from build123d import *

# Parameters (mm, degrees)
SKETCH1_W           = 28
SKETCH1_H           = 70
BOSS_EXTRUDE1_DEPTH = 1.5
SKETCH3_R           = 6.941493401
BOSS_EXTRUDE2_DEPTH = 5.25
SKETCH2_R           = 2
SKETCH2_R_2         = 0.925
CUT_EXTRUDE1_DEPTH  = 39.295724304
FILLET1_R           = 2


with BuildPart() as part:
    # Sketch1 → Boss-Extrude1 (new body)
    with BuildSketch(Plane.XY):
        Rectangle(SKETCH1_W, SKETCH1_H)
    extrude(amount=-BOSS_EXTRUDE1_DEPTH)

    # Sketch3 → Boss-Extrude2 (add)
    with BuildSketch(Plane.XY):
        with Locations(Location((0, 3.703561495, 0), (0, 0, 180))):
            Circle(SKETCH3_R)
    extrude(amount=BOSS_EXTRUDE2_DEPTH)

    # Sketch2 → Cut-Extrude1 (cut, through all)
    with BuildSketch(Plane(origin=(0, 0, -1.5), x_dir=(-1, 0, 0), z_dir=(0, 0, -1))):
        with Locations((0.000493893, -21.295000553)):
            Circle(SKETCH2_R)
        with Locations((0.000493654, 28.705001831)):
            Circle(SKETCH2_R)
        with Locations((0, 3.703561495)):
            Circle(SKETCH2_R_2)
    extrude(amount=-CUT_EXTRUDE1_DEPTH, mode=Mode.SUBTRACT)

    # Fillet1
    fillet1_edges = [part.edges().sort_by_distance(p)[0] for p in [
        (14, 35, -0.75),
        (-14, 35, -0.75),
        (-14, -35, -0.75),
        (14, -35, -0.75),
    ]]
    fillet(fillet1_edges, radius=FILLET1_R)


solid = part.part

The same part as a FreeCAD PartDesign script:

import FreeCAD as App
import Part
import Sketcher
from FreeCAD import Vector
Q = App.Units.Quantity


def edges_at(feature, points):
    """Names of the edges that pass closest to the given points."""
    edges = feature.Shape.Edges
    near = lambda p: min(range(len(edges)), key=lambda i: edges[i].distToShape(Part.Vertex(*p))[0])
    return sorted({f"Edge{near(p) + 1}" for p in points})

doc = App.newDocument("Part")
body = doc.addObject("PartDesign::Body", "Body")

sketch1 = body.newObject("Sketcher::SketchObject", "Sketch")
sketch1.AttachmentSupport = (doc.getObject("XY_Plane"), [""])
sketch1.MapMode = "FlatFace"
sketch1.addGeometry([
    Part.LineSegment(Vector(-14, 35, 0), Vector(-14, -35, 0)),
    Part.LineSegment(Vector(-14, -35, 0), Vector(14, -35, 0)),
    Part.LineSegment(Vector(14, -35, 0), Vector(14, 35, 0)),
    Part.LineSegment(Vector(14, 35, 0), Vector(-14, 35, 0)),
], False)
sketch1.addConstraint([
    Sketcher.Constraint("Coincident", 0, 2, 1, 1),
    Sketcher.Constraint("Coincident", 1, 2, 2, 1),
    Sketcher.Constraint("Coincident", 2, 2, 3, 1),
    Sketcher.Constraint("Coincident", 3, 2, 0, 1),
    Sketcher.Constraint("Vertical", 0),
    Sketcher.Constraint("Horizontal", 1),
    Sketcher.Constraint("Vertical", 2),
    Sketcher.Constraint("Horizontal", 3),
    Sketcher.Constraint("Symmetric", 0, 2, 2, 2, -1, 1),
    Sketcher.Constraint("DistanceX", 1, 1, 1, 2, Q("28 mm")),
    Sketcher.Constraint("DistanceY", 0, 2, 0, 1, Q("70 mm")),
])
pad1 = body.newObject("PartDesign::Pad", "Pad")
pad1.Profile = sketch1
pad1.Length = 1.5
pad1.Reversed = True

sketch2 = body.newObject("Sketcher::SketchObject", "Sketch001")
sketch2.AttachmentSupport = (doc.getObject("XY_Plane"), [""])
sketch2.MapMode = "FlatFace"
sketch2.addGeometry(Part.Circle(Vector(0, 4, 0), Vector(0, 0, 1), 7), False)
sketch2.addConstraint([
    Sketcher.Constraint("PointOnObject", 0, 3, -2),
    Sketcher.Constraint("Diameter", 0, Q("13.882987 mm")),
    Sketcher.Constraint("DistanceY", -1, 1, 0, 3, Q("3.703561 mm")),
])
pad2 = body.newObject("PartDesign::Pad", "Pad001")
pad2.Profile = sketch2
pad2.Length = 5.25

sketch3 = body.newObject("Sketcher::SketchObject", "Sketch002")
sketch3.AttachmentSupport = (doc.getObject("XY_Plane"), [""])
sketch3.MapMode = "FlatFace"
sketch3.AttachmentOffset = App.Placement(Vector(0, 0, -1.5), App.Rotation())
sketch3.addGeometry([
    Part.Circle(Vector(0, -21.3, 0), Vector(0, 0, 1), 2),
    Part.Circle(Vector(0, 28.7, 0), Vector(0, 0, 1), 2),
    Part.Circle(Vector(0, 3.7, 0), Vector(0, 0, 1), 0.9),
], False)
sketch3.addConstraint([
    Sketcher.Constraint("Equal", 0, 1),
    Sketcher.Constraint("PointOnObject", 2, 3, -2),
    Sketcher.Constraint("Vertical", 0, 3, 1, 3),
    Sketcher.Constraint("Diameter", 0, Q("4 mm")),
    Sketcher.Constraint("Diameter", 2, Q("1.85 mm")),
    Sketcher.Constraint("DistanceY", 0, 3, -1, 1, Q("21.295001 mm")),
    Sketcher.Constraint("DistanceY", -1, 1, 1, 3, Q("28.705002 mm")),
    Sketcher.Constraint("DistanceY", -1, 1, 2, 3, Q("3.703561 mm")),
    Sketcher.Constraint("DistanceX", 0, 3, -1, 1, Q("0.000494 mm")),
])
pocket1 = body.newObject("PartDesign::Pocket", "Pocket")
pocket1.Profile = sketch3
pocket1.Type = "ThroughAll"
pocket1.Reversed = True
doc.recompute()

fillet = body.newObject("PartDesign::Fillet", "Fillet")
fillet.Base = (pocket1, edges_at(pocket1, [
    (14, 35, -0.75),
    (-14, 35, -0.75),
    (-14, -35, -0.75),
    (14, -35, -0.75),
]))
fillet.Radius = 2

doc.recompute()
